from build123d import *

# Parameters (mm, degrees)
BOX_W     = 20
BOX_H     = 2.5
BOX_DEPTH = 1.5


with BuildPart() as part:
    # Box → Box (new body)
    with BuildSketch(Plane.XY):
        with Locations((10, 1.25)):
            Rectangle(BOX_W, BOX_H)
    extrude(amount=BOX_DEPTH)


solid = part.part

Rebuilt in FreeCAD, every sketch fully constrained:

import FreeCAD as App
import Part
import Sketcher

V = App.Vector


def add_polygon(sketch, points):
    """Adds a closed chain of lines whose ends are joined by coincident constraints."""
    first, n = sketch.GeometryCount, len(points)
    for a, b in zip(points, points[1:] + points[:1]):
        sketch.addGeometry(Part.LineSegment(App.Vector(*a, 0), App.Vector(*b, 0)), False)
    for i in range(n):
        sketch.addConstraint(Sketcher.Constraint("Coincident", first + i, 2, first + (i + 1) % n, 1))

doc = App.newDocument("Part")
body = doc.addObject("PartDesign::Body", "Body")

sketch1 = body.newObject("Sketcher::SketchObject", "Sketch")
sketch1.AttachmentSupport = (doc.getObject("XY_Plane"), [""])
sketch1.MapMode = "FlatFace"
add_polygon(sketch1, [(0, 2.5), (0, 0), (20, 0), (20, 2.5)])
sketch1.addConstraint(Sketcher.Constraint("Vertical", 0))
sketch1.addConstraint(Sketcher.Constraint("Horizontal", 1))
sketch1.addConstraint(Sketcher.Constraint("Vertical", 2))
sketch1.addConstraint(Sketcher.Constraint("Horizontal", 3))
sketch1.addConstraint(Sketcher.Constraint("Coincident", 0, 2, -1, 1))
sketch1.addConstraint(Sketcher.Constraint("DistanceX", 1, 1, 1, 2, 20.0))
sketch1.addConstraint(Sketcher.Constraint("DistanceY", 0, 2, 0, 1, 2.5))
pad1 = body.newObject("PartDesign::Pad", "Pad")
pad1.Profile = sketch1
pad1.Length = 1.5

doc.recompute()
